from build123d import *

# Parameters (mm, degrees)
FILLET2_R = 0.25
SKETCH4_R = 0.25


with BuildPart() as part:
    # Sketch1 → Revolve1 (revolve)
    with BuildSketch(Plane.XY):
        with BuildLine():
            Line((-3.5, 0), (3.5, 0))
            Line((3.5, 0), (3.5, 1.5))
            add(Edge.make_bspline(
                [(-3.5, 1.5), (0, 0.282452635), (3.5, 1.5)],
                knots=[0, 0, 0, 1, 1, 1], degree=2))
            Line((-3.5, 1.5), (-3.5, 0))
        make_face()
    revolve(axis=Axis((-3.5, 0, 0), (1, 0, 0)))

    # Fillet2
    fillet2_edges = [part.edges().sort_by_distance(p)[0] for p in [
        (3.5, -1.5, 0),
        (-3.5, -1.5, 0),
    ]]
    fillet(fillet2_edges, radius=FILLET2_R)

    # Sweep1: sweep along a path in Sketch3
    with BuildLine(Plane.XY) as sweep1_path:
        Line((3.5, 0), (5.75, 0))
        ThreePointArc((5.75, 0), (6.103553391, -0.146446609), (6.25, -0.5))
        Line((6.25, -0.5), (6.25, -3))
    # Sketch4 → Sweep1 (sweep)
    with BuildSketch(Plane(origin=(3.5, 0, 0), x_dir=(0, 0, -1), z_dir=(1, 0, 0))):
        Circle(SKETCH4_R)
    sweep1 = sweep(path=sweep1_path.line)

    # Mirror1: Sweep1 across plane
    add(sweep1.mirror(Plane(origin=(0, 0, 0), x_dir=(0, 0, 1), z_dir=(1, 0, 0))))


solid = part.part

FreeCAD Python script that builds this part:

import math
import FreeCAD as App
import Part
import Sketcher

V = App.Vector
Q = App.Units.Quantity


def edges_at(feature, points):
    """Names of the edges that pass closest to the given points."""
    edges = feature.Shape.Edges
    near = lambda p: min(range(len(edges)), key=lambda i: edges[i].distToShape(Part.Vertex(*p))[0])
    return sorted({f"Edge{near(p) + 1}" for p in points})

doc = App.newDocument("Part")
params = doc.addObject("Spreadsheet::Sheet", "Params")
for row, (alias, value) in enumerate([
    ("revolution_angle", "360 deg"),
    ("fillet_radius", "0.25 mm"),
    ("sketch2_diameter", "0.5 mm"),
    ("sketch3_radius", "0.5 mm"),
    ("sketch3_height", "2.5 mm"),
    ("sketch3_width", "2.25 mm"),
], start=1):
    params.set(f"A{row}", alias)
    params.set(f"B{row}", "=" + value)
    params.setAlias(f"B{row}", alias)

body = doc.addObject("PartDesign::Body", "Body")

sketch1 = doc.addObject("Sketcher::SketchObject", "Sketch")
body.addObject(sketch1)
sketch1.AttachmentSupport = (doc.XY_Plane, [""])
sketch1.MapMode = "FlatFace"
sketch1.addGeometry(Part.LineSegment(V(-3.5, 0, 0), V(3.5, 0, 0)), False)
sketch1.addGeometry(Part.LineSegment(V(3.5, 0, 0), V(3.5, 1.5, 0)), False)
sketch1.addGeometry(Part.BSplineCurve([V(-3.5, 1.5, 0), V(0, 0.282453, 0), V(3.5, 1.5, 0)], [3, 3], [0, 1], False, 2, [1, 1, 1], False), False)
sketch1.addGeometry(Part.LineSegment(V(-3.5, 1.5, 0), V(-3.5, 0, 0)), False)
sketch1.addConstraint(Sketcher.Constraint("Block", 2))
sketch1.addConstraint(Sketcher.Constraint("Coincident", 0, 2, 1, 1))
sketch1.addConstraint(Sketcher.Constraint("Coincident", 1, 2, 2, 2))
sketch1.addConstraint(Sketcher.Constraint("Coincident", 2, 1, 3, 1))
sketch1.addConstraint(Sketcher.Constraint("Coincident", 3, 2, 0, 1))
sketch1.addConstraint(Sketcher.Constraint("Horizontal", 0))
sketch1.addConstraint(Sketcher.Constraint("Vertical", 1))
sketch1.addConstraint(Sketcher.Constraint("Vertical", 3))
sketch1.addConstraint(Sketcher.Constraint("PointOnObject", 0, 2, -1))
revolution = doc.addObject("PartDesign::Revolution", "Revolution")
body.addObject(revolution)
revolution.Profile = sketch1
revolution.ReferenceAxis = (sketch1, ["H_Axis"])
revolution.setExpression("Angle", "Params.revolution_angle")
doc.recompute()

fillet = doc.addObject("PartDesign::Fillet", "Fillet")
body.addObject(fillet)
fillet.Base = (revolution, edges_at(revolution, [(3.5, -1.5, 0), (-3.5, -1.5, 0)]))
fillet.setExpression("Radius", "Params.fillet_radius")

sketch2 = doc.addObject("Sketcher::SketchObject", "Sketch001")
body.addObject(sketch2)
sketch2.AttachmentSupport = (doc.YZ_Plane, [""])
sketch2.MapMode = "FlatFace"
sketch2.AttachmentOffset = App.Placement(V(0, 0, 3.5), App.Rotation())
sketch2.addGeometry(Part.Circle(V(0, 0, 0), V(0, 0, 1), 0.25), False)
sketch2.addConstraint(Sketcher.Constraint("Coincident", 0, 3, -1, 1))
sketch2.addConstraint(Sketcher.Constraint("Diameter", 0, Q("0.5 mm")))
sketch2.setExpression("Constraints[1]", "Params.sketch2_diameter")

sketch3 = doc.addObject("Sketcher::SketchObject", "Sketch002")
body.addObject(sketch3)
sketch3.AttachmentSupport = (doc.XY_Plane, [""])
sketch3.MapMode = "FlatFace"
sketch3.addGeometry(Part.LineSegment(V(3.5, 0, 0), V(5.75, 0, 0)), False)
sketch3.addGeometry(Part.ArcOfCircle(Part.Circle(V(5.75, -0.5, 0), V(0, 0, 1), 0.5), math.radians(0), math.radians(90)), False)
sketch3.addGeometry(Part.LineSegment(V(6.25, -0.5, 0), V(6.25, -3, 0)), False)
sketch3.addConstraint(Sketcher.Constraint("Tangent", 0, 2, 1, 2))
sketch3.addConstraint(Sketcher.Constraint("Tangent", 1, 1, 2, 1))
sketch3.addConstraint(Sketcher.Constraint("Horizontal", 0))
sketch3.addConstraint(Sketcher.Constraint("Vertical", 2))
sketch3.addConstraint(Sketcher.Constraint("PointOnObject", 0, 1, -1))
sketch3.addConstraint(Sketcher.Constraint("Radius", 1, Q("0.5 mm")))
sketch3.addConstraint(Sketcher.Constraint("DistanceY", 2, 2, 2, 1, Q("2.5 mm")))
sketch3.addConstraint(Sketcher.Constraint("DistanceX", 0, 1, 0, 2, Q("2.25 mm")))
sketch3.addConstraint(Sketcher.Constraint("DistanceX", -1, 1, 0, 1, Q("3.5 mm")))
sketch3.setExpression("Constraints[5]", "Params.sketch3_radius")
sketch3.setExpression("Constraints[6]", "Params.sketch3_height")
sketch3.setExpression("Constraints[7]", "Params.sketch3_width")
doc.recompute()

additivepipe = doc.addObject("PartDesign::AdditivePipe", "AdditivePipe")
body.addObject(additivepipe)
additivepipe.Profile = sketch2
additivepipe.Spine = (sketch3, ["Edge1", "Edge2", "Edge3"])
doc.recompute()

mirrored = doc.addObject("PartDesign::Mirrored", "Mirrored")
body.addObject(mirrored)
mirrored.Originals = [additivepipe]
mirrored.MirrorPlane = (doc.YZ_Plane, [""])
body.Tip = mirrored

doc.recompute()
